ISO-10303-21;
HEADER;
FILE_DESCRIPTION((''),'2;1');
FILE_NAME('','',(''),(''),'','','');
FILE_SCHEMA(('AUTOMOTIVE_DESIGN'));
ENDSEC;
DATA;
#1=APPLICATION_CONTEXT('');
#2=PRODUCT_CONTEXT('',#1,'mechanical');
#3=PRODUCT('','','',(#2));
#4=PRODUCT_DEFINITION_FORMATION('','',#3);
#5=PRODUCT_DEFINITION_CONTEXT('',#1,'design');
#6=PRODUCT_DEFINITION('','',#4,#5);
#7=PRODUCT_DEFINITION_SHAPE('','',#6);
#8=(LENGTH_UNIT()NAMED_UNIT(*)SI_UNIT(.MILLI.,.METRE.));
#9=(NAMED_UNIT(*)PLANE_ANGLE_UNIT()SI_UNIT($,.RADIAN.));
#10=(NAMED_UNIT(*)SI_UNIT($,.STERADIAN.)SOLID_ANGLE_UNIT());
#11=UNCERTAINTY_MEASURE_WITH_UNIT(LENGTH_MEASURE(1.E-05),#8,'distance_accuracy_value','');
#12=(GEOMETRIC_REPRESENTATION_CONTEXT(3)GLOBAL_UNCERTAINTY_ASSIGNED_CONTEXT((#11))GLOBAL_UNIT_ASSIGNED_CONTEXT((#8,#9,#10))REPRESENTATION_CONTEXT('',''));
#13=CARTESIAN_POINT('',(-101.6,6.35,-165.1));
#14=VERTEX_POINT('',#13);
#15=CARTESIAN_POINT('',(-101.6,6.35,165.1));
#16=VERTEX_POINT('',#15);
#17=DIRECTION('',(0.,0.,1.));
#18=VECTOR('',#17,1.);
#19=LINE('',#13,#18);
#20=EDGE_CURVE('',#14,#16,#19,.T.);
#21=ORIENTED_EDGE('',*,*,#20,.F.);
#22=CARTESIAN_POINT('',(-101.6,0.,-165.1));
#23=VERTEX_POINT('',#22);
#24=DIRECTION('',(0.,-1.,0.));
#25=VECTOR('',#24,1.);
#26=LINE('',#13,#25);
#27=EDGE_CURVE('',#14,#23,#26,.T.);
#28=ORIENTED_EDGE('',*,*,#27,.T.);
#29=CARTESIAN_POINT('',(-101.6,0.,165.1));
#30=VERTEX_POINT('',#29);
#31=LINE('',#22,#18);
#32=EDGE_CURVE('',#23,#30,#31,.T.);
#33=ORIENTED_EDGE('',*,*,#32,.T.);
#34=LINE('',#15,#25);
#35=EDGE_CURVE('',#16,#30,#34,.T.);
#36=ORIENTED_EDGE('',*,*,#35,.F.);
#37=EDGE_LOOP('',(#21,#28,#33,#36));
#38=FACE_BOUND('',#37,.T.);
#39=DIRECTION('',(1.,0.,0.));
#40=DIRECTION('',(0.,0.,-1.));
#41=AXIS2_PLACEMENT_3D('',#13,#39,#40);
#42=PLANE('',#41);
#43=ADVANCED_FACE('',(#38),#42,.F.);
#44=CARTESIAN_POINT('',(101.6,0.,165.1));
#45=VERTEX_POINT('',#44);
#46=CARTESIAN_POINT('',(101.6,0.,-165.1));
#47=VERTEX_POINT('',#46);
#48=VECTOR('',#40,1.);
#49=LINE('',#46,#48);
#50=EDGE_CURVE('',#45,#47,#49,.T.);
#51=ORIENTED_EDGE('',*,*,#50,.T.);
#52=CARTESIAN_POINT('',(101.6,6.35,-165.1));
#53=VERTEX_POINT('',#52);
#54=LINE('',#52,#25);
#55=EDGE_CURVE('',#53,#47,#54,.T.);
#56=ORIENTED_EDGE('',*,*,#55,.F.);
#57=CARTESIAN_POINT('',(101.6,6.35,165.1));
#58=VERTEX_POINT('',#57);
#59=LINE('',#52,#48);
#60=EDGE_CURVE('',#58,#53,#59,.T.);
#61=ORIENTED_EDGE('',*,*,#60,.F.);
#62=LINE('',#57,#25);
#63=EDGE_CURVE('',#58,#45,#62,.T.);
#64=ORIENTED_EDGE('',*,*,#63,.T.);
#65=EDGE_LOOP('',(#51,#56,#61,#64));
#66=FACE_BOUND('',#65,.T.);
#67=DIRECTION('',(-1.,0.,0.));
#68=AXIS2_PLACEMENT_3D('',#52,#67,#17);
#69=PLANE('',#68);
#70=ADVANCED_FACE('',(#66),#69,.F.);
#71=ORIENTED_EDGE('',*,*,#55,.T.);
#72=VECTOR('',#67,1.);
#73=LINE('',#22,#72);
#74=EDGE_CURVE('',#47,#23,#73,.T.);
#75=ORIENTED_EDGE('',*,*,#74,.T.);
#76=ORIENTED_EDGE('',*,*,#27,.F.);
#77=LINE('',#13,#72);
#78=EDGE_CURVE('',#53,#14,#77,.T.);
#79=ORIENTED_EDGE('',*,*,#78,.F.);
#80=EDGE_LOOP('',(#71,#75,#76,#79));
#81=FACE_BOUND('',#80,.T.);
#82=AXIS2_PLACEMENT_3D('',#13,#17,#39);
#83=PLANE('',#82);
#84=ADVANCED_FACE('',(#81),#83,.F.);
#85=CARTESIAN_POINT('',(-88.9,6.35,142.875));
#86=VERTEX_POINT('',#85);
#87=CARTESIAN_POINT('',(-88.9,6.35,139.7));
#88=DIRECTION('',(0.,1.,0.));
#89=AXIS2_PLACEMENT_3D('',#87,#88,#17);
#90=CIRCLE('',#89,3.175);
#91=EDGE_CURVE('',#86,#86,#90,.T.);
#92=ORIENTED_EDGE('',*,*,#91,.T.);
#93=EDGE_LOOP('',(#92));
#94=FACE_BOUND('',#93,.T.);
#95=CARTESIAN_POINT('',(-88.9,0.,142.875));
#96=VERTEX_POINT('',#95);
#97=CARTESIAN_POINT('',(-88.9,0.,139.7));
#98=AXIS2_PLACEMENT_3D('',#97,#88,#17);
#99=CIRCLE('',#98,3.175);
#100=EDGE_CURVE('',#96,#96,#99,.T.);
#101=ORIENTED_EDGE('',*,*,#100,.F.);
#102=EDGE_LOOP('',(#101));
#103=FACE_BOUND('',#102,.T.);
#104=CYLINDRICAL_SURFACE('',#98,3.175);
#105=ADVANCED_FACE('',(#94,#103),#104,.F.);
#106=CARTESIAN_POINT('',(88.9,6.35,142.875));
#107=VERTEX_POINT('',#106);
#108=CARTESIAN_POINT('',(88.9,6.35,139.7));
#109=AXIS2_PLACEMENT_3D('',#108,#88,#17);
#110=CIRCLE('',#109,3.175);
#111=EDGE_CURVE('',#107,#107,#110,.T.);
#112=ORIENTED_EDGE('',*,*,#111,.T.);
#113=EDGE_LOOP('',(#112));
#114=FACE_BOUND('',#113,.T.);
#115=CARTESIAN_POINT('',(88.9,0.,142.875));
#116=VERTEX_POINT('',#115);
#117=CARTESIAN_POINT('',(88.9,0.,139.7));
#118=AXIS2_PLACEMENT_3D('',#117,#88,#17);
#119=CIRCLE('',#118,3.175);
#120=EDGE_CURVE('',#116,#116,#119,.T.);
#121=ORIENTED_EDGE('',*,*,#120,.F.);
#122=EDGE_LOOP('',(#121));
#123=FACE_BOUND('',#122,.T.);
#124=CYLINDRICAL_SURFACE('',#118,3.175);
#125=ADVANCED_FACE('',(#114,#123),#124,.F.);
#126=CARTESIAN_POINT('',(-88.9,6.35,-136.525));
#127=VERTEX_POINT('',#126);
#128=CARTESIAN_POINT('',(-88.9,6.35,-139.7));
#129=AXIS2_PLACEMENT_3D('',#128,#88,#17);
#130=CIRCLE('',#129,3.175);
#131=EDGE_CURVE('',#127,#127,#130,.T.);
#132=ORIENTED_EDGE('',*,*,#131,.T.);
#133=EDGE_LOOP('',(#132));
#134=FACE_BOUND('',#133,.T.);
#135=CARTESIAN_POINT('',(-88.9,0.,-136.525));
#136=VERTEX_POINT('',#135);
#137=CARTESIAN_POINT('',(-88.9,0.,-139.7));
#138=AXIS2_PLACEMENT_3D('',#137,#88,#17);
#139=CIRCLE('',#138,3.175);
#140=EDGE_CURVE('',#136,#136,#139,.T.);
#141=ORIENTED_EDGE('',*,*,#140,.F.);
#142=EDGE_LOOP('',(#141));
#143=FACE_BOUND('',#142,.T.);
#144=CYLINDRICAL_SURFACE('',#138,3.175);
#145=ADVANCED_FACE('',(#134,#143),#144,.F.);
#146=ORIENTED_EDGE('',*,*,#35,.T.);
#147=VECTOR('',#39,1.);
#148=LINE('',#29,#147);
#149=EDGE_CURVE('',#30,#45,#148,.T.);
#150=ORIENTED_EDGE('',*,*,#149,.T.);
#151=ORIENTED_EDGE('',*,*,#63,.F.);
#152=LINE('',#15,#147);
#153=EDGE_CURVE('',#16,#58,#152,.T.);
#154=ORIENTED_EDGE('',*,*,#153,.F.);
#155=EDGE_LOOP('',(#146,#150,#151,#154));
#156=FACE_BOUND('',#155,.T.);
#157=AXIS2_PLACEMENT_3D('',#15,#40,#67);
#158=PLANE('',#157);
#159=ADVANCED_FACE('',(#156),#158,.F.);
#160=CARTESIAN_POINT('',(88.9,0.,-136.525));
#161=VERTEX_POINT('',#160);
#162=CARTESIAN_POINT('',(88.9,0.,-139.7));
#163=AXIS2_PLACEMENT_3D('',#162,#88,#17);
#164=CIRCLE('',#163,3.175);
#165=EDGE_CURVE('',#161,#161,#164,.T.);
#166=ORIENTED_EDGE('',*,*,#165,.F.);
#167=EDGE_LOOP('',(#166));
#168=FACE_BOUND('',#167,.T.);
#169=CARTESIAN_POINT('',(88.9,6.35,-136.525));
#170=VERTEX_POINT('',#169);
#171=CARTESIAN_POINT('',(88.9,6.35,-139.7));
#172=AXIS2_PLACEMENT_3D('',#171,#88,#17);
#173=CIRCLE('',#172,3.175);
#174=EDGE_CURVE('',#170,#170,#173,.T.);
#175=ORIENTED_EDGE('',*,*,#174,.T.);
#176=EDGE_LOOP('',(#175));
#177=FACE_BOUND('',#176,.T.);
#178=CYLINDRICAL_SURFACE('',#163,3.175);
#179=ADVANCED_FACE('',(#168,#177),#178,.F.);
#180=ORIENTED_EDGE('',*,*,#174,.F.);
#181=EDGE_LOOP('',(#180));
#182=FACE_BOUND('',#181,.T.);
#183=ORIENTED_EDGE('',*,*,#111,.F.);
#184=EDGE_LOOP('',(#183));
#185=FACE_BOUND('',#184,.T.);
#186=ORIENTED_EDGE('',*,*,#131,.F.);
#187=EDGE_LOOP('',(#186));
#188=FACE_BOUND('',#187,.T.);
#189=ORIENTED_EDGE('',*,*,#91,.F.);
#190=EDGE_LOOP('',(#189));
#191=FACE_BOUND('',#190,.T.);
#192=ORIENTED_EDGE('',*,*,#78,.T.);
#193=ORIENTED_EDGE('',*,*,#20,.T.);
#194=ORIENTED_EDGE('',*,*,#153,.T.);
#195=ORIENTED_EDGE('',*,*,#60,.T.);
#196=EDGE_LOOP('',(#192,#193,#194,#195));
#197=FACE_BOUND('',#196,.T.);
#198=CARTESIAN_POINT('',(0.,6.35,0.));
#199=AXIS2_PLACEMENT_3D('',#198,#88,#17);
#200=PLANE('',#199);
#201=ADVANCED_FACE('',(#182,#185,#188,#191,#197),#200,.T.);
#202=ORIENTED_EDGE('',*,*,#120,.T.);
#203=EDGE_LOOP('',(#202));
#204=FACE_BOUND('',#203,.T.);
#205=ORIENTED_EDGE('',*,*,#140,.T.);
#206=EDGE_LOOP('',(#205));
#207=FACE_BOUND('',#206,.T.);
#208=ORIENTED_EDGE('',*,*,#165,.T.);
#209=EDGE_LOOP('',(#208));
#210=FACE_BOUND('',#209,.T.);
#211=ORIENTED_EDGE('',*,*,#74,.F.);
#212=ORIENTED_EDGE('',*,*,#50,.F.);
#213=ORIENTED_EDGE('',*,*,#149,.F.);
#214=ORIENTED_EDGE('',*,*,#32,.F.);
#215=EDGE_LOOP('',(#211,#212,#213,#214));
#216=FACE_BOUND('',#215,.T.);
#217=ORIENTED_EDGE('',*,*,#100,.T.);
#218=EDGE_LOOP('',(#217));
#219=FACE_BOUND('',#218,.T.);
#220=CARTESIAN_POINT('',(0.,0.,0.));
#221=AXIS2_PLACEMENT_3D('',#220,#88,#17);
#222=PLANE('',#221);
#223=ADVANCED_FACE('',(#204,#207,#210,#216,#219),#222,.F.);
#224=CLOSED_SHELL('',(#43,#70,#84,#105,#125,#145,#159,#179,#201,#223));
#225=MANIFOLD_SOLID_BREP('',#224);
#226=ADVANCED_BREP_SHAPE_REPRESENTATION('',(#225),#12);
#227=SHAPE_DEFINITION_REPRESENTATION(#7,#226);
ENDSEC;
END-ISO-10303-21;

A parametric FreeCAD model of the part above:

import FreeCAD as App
import Part
import Sketcher
Q = App.Units.Quantity


def add_polygon(sketch, points):
    """Adds a closed chain of lines whose ends are joined by coincident constraints."""
    first, n = sketch.GeometryCount, len(points)
    for a, b in zip(points, points[1:] + points[:1]):
        sketch.addGeometry(Part.LineSegment(App.Vector(*a, 0), App.Vector(*b, 0)), False)
    for i in range(n):
        sketch.addConstraint(Sketcher.Constraint("Coincident", first + i, 2, first + (i + 1) % n, 1))

doc = App.newDocument("Part")
params = doc.addObject("Spreadsheet::Sheet", "Params")
for row, (alias, value) in enumerate([
    ("sketch1_width", "8 in"),
    ("sketch1_height", "13 in"),
    ("pad1_length", "0.25 in"),
    ("sketch2_diameter", "0.25 in"),
], start=1):
    params.set(f"A{row}", alias)
    params.set(f"B{row}", "=" + value)
    params.setAlias(f"B{row}", alias)

body = doc.addObject("PartDesign::Body", "Body")

sketch1 = doc.addObject("Sketcher::SketchObject", "Sketch")
body.addObject(sketch1)
sketch1.AttachmentSupport = (doc.XZ_Plane, [""])
sketch1.MapMode = "FlatFace"
add_polygon(sketch1, [(-102, -165), (-102, 165), (102, 165), (102, -165)])
sketch1.addConstraint([
    Sketcher.Constraint("Vertical", 0),
    Sketcher.Constraint("Horizontal", 1),
    Sketcher.Constraint("Vertical", 2),
    Sketcher.Constraint("Horizontal", 3),
    Sketcher.Constraint("Symmetric", 0, 2, 2, 2, -1, 1),
    Sketcher.Constraint("DistanceX", 1, 1, 1, 2, Q("8 in")),
    Sketcher.Constraint("DistanceY", 0, 1, 0, 2, Q("13 in")),
])
sketch1.setExpression("Constraints[9]", "Params.sketch1_width")
sketch1.setExpression("Constraints[10]", "Params.sketch1_height")
pad1 = doc.addObject("PartDesign::Pad", "Pad")
body.addObject(pad1)
pad1.Profile = sketch1
pad1.setExpression("Length", "Params.pad1_length")
pad1.Reversed = True

sketch2 = doc.addObject("Sketcher::SketchObject", "Sketch001")
body.addObject(sketch2)
sketch2.AttachmentSupport = (doc.XZ_Plane, [""])
sketch2.MapMode = "FlatFace"
sketch2.AttachmentOffset = App.Placement(App.Vector(0, 0, -0.25 * 25.4), App.Rotation())
sketch2.addGeometry([
    Part.Circle(App.Vector(88.9, -139.7, 0), App.Vector(0, 0, 1), 3.2),
    Part.Circle(App.Vector(-88.9, -139.7, 0), App.Vector(0, 0, 1), 3.2),
    Part.Circle(App.Vector(88.9, 139.7, 0), App.Vector(0, 0, 1), 3.2),
    Part.Circle(App.Vector(-88.9, 139.7, 0), App.Vector(0, 0, 1), 3.2),
], False)
sketch2.addConstraint([
    Sketcher.Constraint("Equal", 0, 1),
    Sketcher.Constraint("Equal", 1, 2),
    Sketcher.Constraint("Equal", 2, 3),
    Sketcher.Constraint("Symmetric", 1, 3, 2, 3, -1, 1),
    Sketcher.Constraint("Symmetric", 0, 3, 3, 3, -1, 1),
    Sketcher.Constraint("Symmetric", 0, 3, 1, 3, -2),
    Sketcher.Constraint("Diameter", 0, Q("0.25 in")),
    Sketcher.Constraint("DistanceX", 1, 3, 0, 3, Q("7 in")),
    Sketcher.Constraint("DistanceY", 0, 3, 2, 3, Q("11 in")),
])
sketch2.setExpression("Constraints[6]", "Params.sketch2_diameter")
pocket1 = doc.addObject("PartDesign::Pocket", "Pocket")
body.addObject(pocket1)
pocket1.Profile = sketch2
pocket1.Type = "ThroughAll"
pocket1.Midplane = True

doc.recompute()
